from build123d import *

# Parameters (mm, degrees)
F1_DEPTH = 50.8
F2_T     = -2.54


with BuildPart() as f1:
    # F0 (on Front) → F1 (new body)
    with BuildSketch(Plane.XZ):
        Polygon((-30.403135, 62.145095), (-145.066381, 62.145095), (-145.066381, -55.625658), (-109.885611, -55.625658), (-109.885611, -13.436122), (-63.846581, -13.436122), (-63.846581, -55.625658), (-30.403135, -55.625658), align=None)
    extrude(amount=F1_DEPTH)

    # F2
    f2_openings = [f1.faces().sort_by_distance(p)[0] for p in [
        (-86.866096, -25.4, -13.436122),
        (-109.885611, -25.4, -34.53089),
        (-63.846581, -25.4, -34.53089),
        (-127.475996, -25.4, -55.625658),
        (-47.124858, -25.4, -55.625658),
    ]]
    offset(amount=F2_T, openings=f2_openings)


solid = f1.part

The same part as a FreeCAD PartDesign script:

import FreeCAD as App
import Part
import Sketcher
from FreeCAD import Vector
Q = App.Units.Quantity


def faces_at(feature, points):
    """Names of the faces that lie closest to the given points."""
    faces = feature.Shape.Faces
    near = lambda p: min(range(len(faces)), key=lambda i: faces[i].distToShape(Part.Vertex(*p))[0])
    return sorted({f"Face{near(p) + 1}" for p in points})


def add_polygon(sketch, points):
    """Adds a closed chain of lines whose ends are joined by coincident constraints."""
    first, n = sketch.GeometryCount, len(points)
    for a, b in zip(points, points[1:] + points[:1]):
        sketch.addGeometry(Part.LineSegment(App.Vector(*a, 0), App.Vector(*b, 0)), False)
    for i in range(n):
        sketch.addConstraint(Sketcher.Constraint("Coincident", first + i, 2, first + (i + 1) % n, 1))

doc = App.newDocument("Part")
body = doc.addObject("PartDesign::Body", "Body")

sketch1 = doc.addObject("Sketcher::SketchObject", "Sketch")
body.addObject(sketch1)
sketch1.AttachmentSupport = (doc.XZ_Plane, [""])
sketch1.MapMode = "FlatFace"
add_polygon(sketch1, [(-30, 62), (-145, 62), (-145, -56), (-110, -56), (-110, -13), (-64, -13), (-64, -56), (-30, -56)])
sketch1.addConstraint([
    Sketcher.Constraint("Horizontal", 0),
    Sketcher.Constraint("Vertical", 1),
    Sketcher.Constraint("Horizontal", 2),
    Sketcher.Constraint("Vertical", 3),
    Sketcher.Constraint("Horizontal", 4),
    Sketcher.Constraint("Vertical", 5),
    Sketcher.Constraint("Horizontal", 6),
    Sketcher.Constraint("Vertical", 7),
    Sketcher.Constraint("Horizontal", 2, 2, 5, 2),
    Sketcher.Constraint("DistanceX", 2, 1, 2, 2, 35.18077),
    Sketcher.Constraint("DistanceX", 4, 1, 4, 2, 46.03903),
    Sketcher.Constraint("DistanceX", 0, 2, 0, 1, 114.663246),
    Sketcher.Constraint("DistanceY", 1, 2, 1, 1, 117.770753),
    Sketcher.Constraint("DistanceY", 3, 1, 3, 2, 42.189536),
    Sketcher.Constraint("DistanceX", 0, 2, -1, 1, 145.066381),
    Sketcher.Constraint("DistanceY", 3, 2, -1, 1, 13.436122),
])
pad1 = doc.addObject("PartDesign::Pad", "Pad")
body.addObject(pad1)
pad1.Profile = sketch1
pad1.Length = Q("2 in")
doc.recompute()

thickness = doc.addObject("PartDesign::Thickness", "Thickness")
body.addObject(thickness)
thickness.Base = (pad1, faces_at(pad1, [
    (-86.866, -25.4, -13.436),
    (-109.886, -25.4, -34.531),
    (-63.847, -25.4, -34.531),
    (-127.476, -25.4, -55.626),
    (-47.125, -25.4, -55.626),
]))
thickness.Value = Q("0.1 in")
thickness.Reversed = True
thickness.Join = "Arc"

doc.recompute()
